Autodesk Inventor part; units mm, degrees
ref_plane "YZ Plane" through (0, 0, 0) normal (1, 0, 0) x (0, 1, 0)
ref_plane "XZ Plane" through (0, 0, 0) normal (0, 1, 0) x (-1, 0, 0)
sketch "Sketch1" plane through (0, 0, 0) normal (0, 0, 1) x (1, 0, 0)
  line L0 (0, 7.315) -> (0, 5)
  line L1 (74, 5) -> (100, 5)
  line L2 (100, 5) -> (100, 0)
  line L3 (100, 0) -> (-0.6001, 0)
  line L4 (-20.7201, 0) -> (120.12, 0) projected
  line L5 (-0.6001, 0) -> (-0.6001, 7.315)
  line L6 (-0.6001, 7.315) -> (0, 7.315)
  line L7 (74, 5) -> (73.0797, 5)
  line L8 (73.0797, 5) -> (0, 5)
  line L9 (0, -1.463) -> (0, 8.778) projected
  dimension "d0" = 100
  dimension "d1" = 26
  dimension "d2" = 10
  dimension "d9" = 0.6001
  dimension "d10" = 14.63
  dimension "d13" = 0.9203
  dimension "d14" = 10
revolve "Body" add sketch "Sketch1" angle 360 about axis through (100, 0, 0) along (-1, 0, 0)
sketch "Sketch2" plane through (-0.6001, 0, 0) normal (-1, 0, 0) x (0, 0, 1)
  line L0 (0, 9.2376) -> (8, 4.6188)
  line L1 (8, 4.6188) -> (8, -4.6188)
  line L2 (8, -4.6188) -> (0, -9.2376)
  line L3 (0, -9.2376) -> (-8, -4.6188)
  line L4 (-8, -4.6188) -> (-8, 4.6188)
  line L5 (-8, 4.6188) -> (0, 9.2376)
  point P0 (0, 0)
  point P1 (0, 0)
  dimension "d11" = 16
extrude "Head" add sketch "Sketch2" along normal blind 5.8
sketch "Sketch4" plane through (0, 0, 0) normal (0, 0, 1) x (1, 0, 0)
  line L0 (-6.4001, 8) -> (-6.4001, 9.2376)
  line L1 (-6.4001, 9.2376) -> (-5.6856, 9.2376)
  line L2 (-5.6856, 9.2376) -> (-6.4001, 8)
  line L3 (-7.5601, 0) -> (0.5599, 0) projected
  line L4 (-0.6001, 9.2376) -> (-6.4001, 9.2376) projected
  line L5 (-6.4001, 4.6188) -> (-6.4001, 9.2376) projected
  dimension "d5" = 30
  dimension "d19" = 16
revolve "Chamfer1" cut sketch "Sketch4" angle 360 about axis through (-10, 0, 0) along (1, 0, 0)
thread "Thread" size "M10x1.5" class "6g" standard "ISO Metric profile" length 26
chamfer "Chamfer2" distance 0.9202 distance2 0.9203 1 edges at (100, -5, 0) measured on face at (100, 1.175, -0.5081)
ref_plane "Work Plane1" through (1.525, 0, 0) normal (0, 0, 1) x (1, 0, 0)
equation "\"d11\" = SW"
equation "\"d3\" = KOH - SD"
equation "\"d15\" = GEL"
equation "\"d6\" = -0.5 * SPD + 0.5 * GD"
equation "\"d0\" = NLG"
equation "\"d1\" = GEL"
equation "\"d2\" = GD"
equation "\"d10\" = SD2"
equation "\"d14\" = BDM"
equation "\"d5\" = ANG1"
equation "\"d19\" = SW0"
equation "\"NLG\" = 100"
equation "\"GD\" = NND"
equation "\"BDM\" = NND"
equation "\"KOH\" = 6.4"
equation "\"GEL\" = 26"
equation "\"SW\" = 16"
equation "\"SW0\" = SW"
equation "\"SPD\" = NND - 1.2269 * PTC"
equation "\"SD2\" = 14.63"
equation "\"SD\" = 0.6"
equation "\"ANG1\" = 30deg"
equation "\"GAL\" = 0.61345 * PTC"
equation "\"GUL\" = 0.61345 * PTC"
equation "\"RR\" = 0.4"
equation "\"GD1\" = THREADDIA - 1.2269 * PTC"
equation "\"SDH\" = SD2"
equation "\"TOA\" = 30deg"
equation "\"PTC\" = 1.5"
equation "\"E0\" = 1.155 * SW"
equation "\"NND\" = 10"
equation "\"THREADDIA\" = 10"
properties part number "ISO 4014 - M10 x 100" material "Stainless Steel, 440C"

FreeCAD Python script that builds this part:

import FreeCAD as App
import Part
import Sketcher

V = App.Vector
Q = App.Units.Quantity


def edges_at(feature, points):
    """Names of the edges that pass closest to the given points."""
    edges = feature.Shape.Edges
    near = lambda p: min(range(len(edges)), key=lambda i: edges[i].distToShape(Part.Vertex(*p))[0])
    return sorted({f"Edge{near(p) + 1}" for p in points})

doc = App.newDocument("Part")
body = doc.addObject("PartDesign::Body", "Body")

# Sketch on XY plane
sketch1 = body.newObject("Sketcher::SketchObject", "Sketch")
sketch1.AttachmentSupport = (doc.getObject("XY_Plane"), [""])
sketch1.MapMode = "FlatFace"
sketch1.addGeometry([
    Part.LineSegment(V(0, 5, 0), V(0, 7.3, 0)),  # 0
    Part.LineSegment(V(0, 7.3, 0), V(-0.6, 7.3, 0)),  # 1
    Part.LineSegment(V(-0.6, 7.3, 0), V(-0.6, 0, 0)),  # 2
    Part.LineSegment(V(-0.6, 0, 0), V(100, 0, 0)),  # 3
    Part.LineSegment(V(100, 0, 0), V(100, 5, 0)),  # 4
    Part.LineSegment(V(100, 5, 0), V(0, 5, 0)),  # 5
], False)
sketch1.addConstraint([
    Sketcher.Constraint("Coincident", 0, 2, 1, 1),
    Sketcher.Constraint("Coincident", 1, 2, 2, 1),
    Sketcher.Constraint("Coincident", 2, 2, 3, 1),
    Sketcher.Constraint("Coincident", 3, 2, 4, 1),
    Sketcher.Constraint("Coincident", 4, 2, 5, 1),
    Sketcher.Constraint("Coincident", 5, 2, 0, 1),
    Sketcher.Constraint("Vertical", 0),
    Sketcher.Constraint("Horizontal", 1),
    Sketcher.Constraint("Vertical", 2),
    Sketcher.Constraint("Horizontal", 3),
    Sketcher.Constraint("Vertical", 4),
    Sketcher.Constraint("Horizontal", 5),
    Sketcher.Constraint("PointOnObject", 0, 2, -2),
    Sketcher.Constraint("PointOnObject", 2, 2, -1),
    Sketcher.Constraint("DistanceX", 5, 2, 5, 1, 100.0),
    Sketcher.Constraint("DistanceX", 1, 2, 1, 1, 0.6),
    Sketcher.Constraint("DistanceY", 4, 1, 4, 2, 5.0),
    Sketcher.Constraint("DistanceY", 0, 1, 0, 2, 2.315),
])
revolution = body.newObject("PartDesign::Revolution", "Revolution")
revolution.Profile = sketch1
revolution.ReferenceAxis = (sketch1, ["H_Axis"])
revolution.Angle = 360

# Sketch on YZ plane
sketch2 = body.newObject("Sketcher::SketchObject", "Sketch001")
sketch2.AttachmentSupport = (doc.getObject("YZ_Plane"), [""])
sketch2.MapMode = "FlatFace"
sketch2.AttachmentOffset = App.Placement(V(0, 0, -0.6001), App.Rotation())
sketch2.addGeometry([
    Part.LineSegment(V(5, 8, 0), V(9, 0, 0)),  # 0
    Part.LineSegment(V(9, 0, 0), V(5, -8, 0)),  # 1
    Part.LineSegment(V(5, -8, 0), V(-5, -8, 0)),  # 2
    Part.LineSegment(V(-5, -8, 0), V(-9, 0, 0)),  # 3
    Part.LineSegment(V(-9, 0, 0), V(-5, 8, 0)),  # 4
    Part.LineSegment(V(-5, 8, 0), V(5, 8, 0)),  # 5
], False)
sketch2.addConstraint([
    Sketcher.Constraint("Coincident", 0, 2, 1, 1),
    Sketcher.Constraint("Coincident", 1, 2, 2, 1),
    Sketcher.Constraint("Coincident", 2, 2, 3, 1),
    Sketcher.Constraint("Coincident", 3, 2, 4, 1),
    Sketcher.Constraint("Coincident", 4, 2, 5, 1),
    Sketcher.Constraint("Coincident", 5, 2, 0, 1),
    Sketcher.Constraint("Horizontal", 2),
    Sketcher.Constraint("Horizontal", 5),
    Sketcher.Constraint("Symmetric", 0, 2, 3, 2, -1, 1),
    Sketcher.Constraint("Symmetric", 1, 2, 4, 2, -1, 1),
    Sketcher.Constraint("PointOnObject", 0, 2, -1),
    Sketcher.Constraint("Parallel", 0, 3),
    Sketcher.Constraint("Vertical", 2, 2, 4, 2),
    Sketcher.Constraint("DistanceY", 2, 2, 4, 2, 16.0),
    Sketcher.Constraint("Angle", 0, Q("-60 deg")),
    Sketcher.Constraint("DistanceX", 2, 2, 2, 1, 9.2376),
])
pad1 = body.newObject("PartDesign::Pad", "Pad")
pad1.Profile = sketch2
pad1.Length = 5.8
pad1.Reversed = True

# Sketch on XY plane
sketch3 = body.newObject("Sketcher::SketchObject", "Sketch002")
sketch3.AttachmentSupport = (doc.getObject("XY_Plane"), [""])
sketch3.MapMode = "FlatFace"
sketch3.addGeometry([
    Part.LineSegment(V(-6.4, 9.2, 0), V(-6.4, 8, 0)),
    Part.LineSegment(V(-6.4, 8, 0), V(-5.7, 9.2, 0)),
    Part.LineSegment(V(-5.7, 9.2, 0), V(-6.4, 9.2, 0)),
], False)
sketch3.addConstraint([
    Sketcher.Constraint("Coincident", 0, 2, 1, 1),
    Sketcher.Constraint("Coincident", 1, 2, 2, 1),
    Sketcher.Constraint("Coincident", 2, 2, 0, 1),
    Sketcher.Constraint("Vertical", 0),
    Sketcher.Constraint("Horizontal", 2),
    Sketcher.Constraint("Angle", 1, Q("60.001 deg")),
    Sketcher.Constraint("DistanceY", -1, 1, 0, 2, 8.0),
    Sketcher.Constraint("DistanceX", 0, 2, -1, 1, 6.4),
    Sketcher.Constraint("Distance", 1, 1.429),
])
groove = body.newObject("PartDesign::Groove", "Groove")
groove.Profile = sketch3
groove.ReferenceAxis = (sketch3, ["H_Axis"])
groove.Angle = 360
doc.recompute()

chamfer = body.newObject("PartDesign::Chamfer", "Chamfer")
chamfer.Base = (groove, edges_at(groove, [(100, -5, 0)]))
chamfer.ChamferType = "Two distances"
chamfer.Size = 0.9202
chamfer.Size2 = 0.9203

doc.recompute()
